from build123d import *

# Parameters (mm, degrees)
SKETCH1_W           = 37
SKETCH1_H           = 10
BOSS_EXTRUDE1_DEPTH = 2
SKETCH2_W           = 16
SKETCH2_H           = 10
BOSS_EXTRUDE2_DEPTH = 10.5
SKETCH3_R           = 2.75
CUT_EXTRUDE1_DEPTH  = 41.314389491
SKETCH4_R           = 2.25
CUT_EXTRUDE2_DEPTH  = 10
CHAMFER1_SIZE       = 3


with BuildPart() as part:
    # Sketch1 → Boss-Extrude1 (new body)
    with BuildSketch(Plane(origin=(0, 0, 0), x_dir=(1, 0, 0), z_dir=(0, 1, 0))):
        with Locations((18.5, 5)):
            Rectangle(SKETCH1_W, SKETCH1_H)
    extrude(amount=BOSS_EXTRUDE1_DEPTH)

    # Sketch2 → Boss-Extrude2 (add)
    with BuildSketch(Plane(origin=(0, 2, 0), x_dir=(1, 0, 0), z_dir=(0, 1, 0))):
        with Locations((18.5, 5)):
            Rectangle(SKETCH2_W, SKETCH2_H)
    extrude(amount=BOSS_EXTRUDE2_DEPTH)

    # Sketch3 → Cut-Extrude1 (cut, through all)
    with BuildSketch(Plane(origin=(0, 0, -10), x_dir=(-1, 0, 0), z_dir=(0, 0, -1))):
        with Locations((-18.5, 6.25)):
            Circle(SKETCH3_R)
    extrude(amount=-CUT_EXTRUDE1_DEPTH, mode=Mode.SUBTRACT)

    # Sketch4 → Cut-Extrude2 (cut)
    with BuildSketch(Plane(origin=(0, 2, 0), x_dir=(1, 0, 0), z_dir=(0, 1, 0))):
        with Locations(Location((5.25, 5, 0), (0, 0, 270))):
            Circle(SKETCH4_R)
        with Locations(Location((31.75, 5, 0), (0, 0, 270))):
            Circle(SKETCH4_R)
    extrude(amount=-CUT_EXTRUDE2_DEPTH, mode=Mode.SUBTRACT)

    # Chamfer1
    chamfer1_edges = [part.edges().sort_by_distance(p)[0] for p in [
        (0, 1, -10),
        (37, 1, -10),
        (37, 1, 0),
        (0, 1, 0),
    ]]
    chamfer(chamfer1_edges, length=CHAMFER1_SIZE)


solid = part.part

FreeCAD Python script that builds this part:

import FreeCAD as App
import Part
import Sketcher


def edges_at(feature, points):
    """Names of the edges that pass closest to the given points."""
    edges = feature.Shape.Edges
    near = lambda p: min(range(len(edges)), key=lambda i: edges[i].distToShape(Part.Vertex(*p))[0])
    return sorted({f"Edge{near(p) + 1}" for p in points})

doc = App.newDocument("Part")
body = doc.addObject("PartDesign::Body", "Body")

sketch1 = doc.addObject("Sketcher::SketchObject", "Sketch")
body.addObject(sketch1)
sketch1.AttachmentSupport = (doc.XZ_Plane, [""])
sketch1.MapMode = "FlatFace"
sketch1.addGeometry(Part.LineSegment(App.Vector(0, -10, 0), App.Vector(0, 0, 0)), False)
sketch1.addGeometry(Part.LineSegment(App.Vector(0, 0, 0), App.Vector(37, 0, 0)), False)
sketch1.addGeometry(Part.LineSegment(App.Vector(37, 0, 0), App.Vector(37, -10, 0)), False)
sketch1.addGeometry(Part.LineSegment(App.Vector(37, -10, 0), App.Vector(0, -10, 0)), False)
sketch1.addConstraint(Sketcher.Constraint("Coincident", 0, 2, 1, 1))
sketch1.addConstraint(Sketcher.Constraint("Coincident", 1, 2, 2, 1))
sketch1.addConstraint(Sketcher.Constraint("Coincident", 2, 2, 3, 1))
sketch1.addConstraint(Sketcher.Constraint("Coincident", 3, 2, 0, 1))
sketch1.addConstraint(Sketcher.Constraint("Vertical", 0))
sketch1.addConstraint(Sketcher.Constraint("Horizontal", 1))
sketch1.addConstraint(Sketcher.Constraint("Vertical", 2))
sketch1.addConstraint(Sketcher.Constraint("Horizontal", 3))
sketch1.addConstraint(Sketcher.Constraint("Coincident", 0, 2, -1, 1))
sketch1.addConstraint(Sketcher.Constraint("DistanceX", 1, 1, 1, 2, 37.0))
sketch1.addConstraint(Sketcher.Constraint("DistanceY", 0, 1, 0, 2, 10.0))
pad1 = doc.addObject("PartDesign::Pad", "Pad")
body.addObject(pad1)
pad1.Profile = sketch1
pad1.Length = 2
pad1.Reversed = True

sketch2 = doc.addObject("Sketcher::SketchObject", "Sketch001")
body.addObject(sketch2)
sketch2.AttachmentSupport = (doc.XZ_Plane, [""])
sketch2.MapMode = "FlatFace"
sketch2.AttachmentOffset = App.Placement(App.Vector(0, 0, -2), App.Rotation())
sketch2.addGeometry(Part.LineSegment(App.Vector(10, -10, 0), App.Vector(10, 0, 0)), False)
sketch2.addGeometry(Part.LineSegment(App.Vector(10, 0, 0), App.Vector(26, 0, 0)), False)
sketch2.addGeometry(Part.LineSegment(App.Vector(26, 0, 0), App.Vector(26, -10, 0)), False)
sketch2.addGeometry(Part.LineSegment(App.Vector(26, -10, 0), App.Vector(10, -10, 0)), False)
sketch2.addConstraint(Sketcher.Constraint("Coincident", 0, 2, 1, 1))
sketch2.addConstraint(Sketcher.Constraint("Coincident", 1, 2, 2, 1))
sketch2.addConstraint(Sketcher.Constraint("Coincident", 2, 2, 3, 1))
sketch2.addConstraint(Sketcher.Constraint("Coincident", 3, 2, 0, 1))
sketch2.addConstraint(Sketcher.Constraint("Vertical", 0))
sketch2.addConstraint(Sketcher.Constraint("Horizontal", 1))
sketch2.addConstraint(Sketcher.Constraint("Vertical", 2))
sketch2.addConstraint(Sketcher.Constraint("Horizontal", 3))
sketch2.addConstraint(Sketcher.Constraint("PointOnObject", 0, 2, -1))
sketch2.addConstraint(Sketcher.Constraint("DistanceX", 1, 1, 1, 2, 16.0))
sketch2.addConstraint(Sketcher.Constraint("DistanceY", 0, 1, 0, 2, 10.0))
sketch2.addConstraint(Sketcher.Constraint("DistanceX", -1, 1, 0, 2, 10.5))
pad2 = doc.addObject("PartDesign::Pad", "Pad001")
body.addObject(pad2)
pad2.Profile = sketch2
pad2.Length = 10.5
pad2.Reversed = True

sketch3 = doc.addObject("Sketcher::SketchObject", "Sketch002")
body.addObject(sketch3)
sketch3.AttachmentSupport = (doc.XY_Plane, [""])
sketch3.MapMode = "FlatFace"
sketch3.AttachmentOffset = App.Placement(App.Vector(0, 0, -10), App.Rotation())
sketch3.addGeometry(Part.Circle(App.Vector(18.5, 6.2, 0), App.Vector(0, 0, 1), 2.8), False)
sketch3.addConstraint(Sketcher.Constraint("Diameter", 0, 5.5))
sketch3.addConstraint(Sketcher.Constraint("DistanceX", -1, 1, 0, 3, 18.5))
sketch3.addConstraint(Sketcher.Constraint("DistanceY", -1, 1, 0, 3, 6.25))
pocket1 = doc.addObject("PartDesign::Pocket", "Pocket")
body.addObject(pocket1)
pocket1.Profile = sketch3
pocket1.Type = "ThroughAll"
pocket1.Reversed = True

sketch4 = doc.addObject("Sketcher::SketchObject", "Sketch003")
body.addObject(sketch4)
sketch4.AttachmentSupport = (doc.XZ_Plane, [""])
sketch4.MapMode = "FlatFace"
sketch4.AttachmentOffset = App.Placement(App.Vector(0, 0, -2), App.Rotation())
sketch4.addGeometry(Part.Circle(App.Vector(5.2, -5, 0), App.Vector(0, 0, 1), 2.2), False)
sketch4.addGeometry(Part.Circle(App.Vector(31.8, -5, 0), App.Vector(0, 0, 1), 2.2), False)
sketch4.addConstraint(Sketcher.Constraint("Equal", 0, 1))
sketch4.addConstraint(Sketcher.Constraint("Horizontal", 0, 3, 1, 3))
sketch4.addConstraint(Sketcher.Constraint("Diameter", 0, 4.5))
sketch4.addConstraint(Sketcher.Constraint("DistanceY", 0, 3, -1, 1, 5.0))
sketch4.addConstraint(Sketcher.Constraint("DistanceX", 0, 3, 1, 3, 26.5))
sketch4.addConstraint(Sketcher.Constraint("DistanceX", -1, 1, 0, 3, 5.25))
pocket2 = doc.addObject("PartDesign::Pocket", "Pocket001")
body.addObject(pocket2)
pocket2.Profile = sketch4
pocket2.Length = 10
pocket2.Reversed = True
doc.recompute()

chamfer = doc.addObject("PartDesign::Chamfer", "Chamfer")
body.addObject(chamfer)
chamfer.Base = (pocket2, edges_at(pocket2, [
    (0, 1, -10),
    (37, 1, -10),
    (37, 1, 0),
    (0, 1, 0),
]))
chamfer.Size = 3

doc.recompute()
